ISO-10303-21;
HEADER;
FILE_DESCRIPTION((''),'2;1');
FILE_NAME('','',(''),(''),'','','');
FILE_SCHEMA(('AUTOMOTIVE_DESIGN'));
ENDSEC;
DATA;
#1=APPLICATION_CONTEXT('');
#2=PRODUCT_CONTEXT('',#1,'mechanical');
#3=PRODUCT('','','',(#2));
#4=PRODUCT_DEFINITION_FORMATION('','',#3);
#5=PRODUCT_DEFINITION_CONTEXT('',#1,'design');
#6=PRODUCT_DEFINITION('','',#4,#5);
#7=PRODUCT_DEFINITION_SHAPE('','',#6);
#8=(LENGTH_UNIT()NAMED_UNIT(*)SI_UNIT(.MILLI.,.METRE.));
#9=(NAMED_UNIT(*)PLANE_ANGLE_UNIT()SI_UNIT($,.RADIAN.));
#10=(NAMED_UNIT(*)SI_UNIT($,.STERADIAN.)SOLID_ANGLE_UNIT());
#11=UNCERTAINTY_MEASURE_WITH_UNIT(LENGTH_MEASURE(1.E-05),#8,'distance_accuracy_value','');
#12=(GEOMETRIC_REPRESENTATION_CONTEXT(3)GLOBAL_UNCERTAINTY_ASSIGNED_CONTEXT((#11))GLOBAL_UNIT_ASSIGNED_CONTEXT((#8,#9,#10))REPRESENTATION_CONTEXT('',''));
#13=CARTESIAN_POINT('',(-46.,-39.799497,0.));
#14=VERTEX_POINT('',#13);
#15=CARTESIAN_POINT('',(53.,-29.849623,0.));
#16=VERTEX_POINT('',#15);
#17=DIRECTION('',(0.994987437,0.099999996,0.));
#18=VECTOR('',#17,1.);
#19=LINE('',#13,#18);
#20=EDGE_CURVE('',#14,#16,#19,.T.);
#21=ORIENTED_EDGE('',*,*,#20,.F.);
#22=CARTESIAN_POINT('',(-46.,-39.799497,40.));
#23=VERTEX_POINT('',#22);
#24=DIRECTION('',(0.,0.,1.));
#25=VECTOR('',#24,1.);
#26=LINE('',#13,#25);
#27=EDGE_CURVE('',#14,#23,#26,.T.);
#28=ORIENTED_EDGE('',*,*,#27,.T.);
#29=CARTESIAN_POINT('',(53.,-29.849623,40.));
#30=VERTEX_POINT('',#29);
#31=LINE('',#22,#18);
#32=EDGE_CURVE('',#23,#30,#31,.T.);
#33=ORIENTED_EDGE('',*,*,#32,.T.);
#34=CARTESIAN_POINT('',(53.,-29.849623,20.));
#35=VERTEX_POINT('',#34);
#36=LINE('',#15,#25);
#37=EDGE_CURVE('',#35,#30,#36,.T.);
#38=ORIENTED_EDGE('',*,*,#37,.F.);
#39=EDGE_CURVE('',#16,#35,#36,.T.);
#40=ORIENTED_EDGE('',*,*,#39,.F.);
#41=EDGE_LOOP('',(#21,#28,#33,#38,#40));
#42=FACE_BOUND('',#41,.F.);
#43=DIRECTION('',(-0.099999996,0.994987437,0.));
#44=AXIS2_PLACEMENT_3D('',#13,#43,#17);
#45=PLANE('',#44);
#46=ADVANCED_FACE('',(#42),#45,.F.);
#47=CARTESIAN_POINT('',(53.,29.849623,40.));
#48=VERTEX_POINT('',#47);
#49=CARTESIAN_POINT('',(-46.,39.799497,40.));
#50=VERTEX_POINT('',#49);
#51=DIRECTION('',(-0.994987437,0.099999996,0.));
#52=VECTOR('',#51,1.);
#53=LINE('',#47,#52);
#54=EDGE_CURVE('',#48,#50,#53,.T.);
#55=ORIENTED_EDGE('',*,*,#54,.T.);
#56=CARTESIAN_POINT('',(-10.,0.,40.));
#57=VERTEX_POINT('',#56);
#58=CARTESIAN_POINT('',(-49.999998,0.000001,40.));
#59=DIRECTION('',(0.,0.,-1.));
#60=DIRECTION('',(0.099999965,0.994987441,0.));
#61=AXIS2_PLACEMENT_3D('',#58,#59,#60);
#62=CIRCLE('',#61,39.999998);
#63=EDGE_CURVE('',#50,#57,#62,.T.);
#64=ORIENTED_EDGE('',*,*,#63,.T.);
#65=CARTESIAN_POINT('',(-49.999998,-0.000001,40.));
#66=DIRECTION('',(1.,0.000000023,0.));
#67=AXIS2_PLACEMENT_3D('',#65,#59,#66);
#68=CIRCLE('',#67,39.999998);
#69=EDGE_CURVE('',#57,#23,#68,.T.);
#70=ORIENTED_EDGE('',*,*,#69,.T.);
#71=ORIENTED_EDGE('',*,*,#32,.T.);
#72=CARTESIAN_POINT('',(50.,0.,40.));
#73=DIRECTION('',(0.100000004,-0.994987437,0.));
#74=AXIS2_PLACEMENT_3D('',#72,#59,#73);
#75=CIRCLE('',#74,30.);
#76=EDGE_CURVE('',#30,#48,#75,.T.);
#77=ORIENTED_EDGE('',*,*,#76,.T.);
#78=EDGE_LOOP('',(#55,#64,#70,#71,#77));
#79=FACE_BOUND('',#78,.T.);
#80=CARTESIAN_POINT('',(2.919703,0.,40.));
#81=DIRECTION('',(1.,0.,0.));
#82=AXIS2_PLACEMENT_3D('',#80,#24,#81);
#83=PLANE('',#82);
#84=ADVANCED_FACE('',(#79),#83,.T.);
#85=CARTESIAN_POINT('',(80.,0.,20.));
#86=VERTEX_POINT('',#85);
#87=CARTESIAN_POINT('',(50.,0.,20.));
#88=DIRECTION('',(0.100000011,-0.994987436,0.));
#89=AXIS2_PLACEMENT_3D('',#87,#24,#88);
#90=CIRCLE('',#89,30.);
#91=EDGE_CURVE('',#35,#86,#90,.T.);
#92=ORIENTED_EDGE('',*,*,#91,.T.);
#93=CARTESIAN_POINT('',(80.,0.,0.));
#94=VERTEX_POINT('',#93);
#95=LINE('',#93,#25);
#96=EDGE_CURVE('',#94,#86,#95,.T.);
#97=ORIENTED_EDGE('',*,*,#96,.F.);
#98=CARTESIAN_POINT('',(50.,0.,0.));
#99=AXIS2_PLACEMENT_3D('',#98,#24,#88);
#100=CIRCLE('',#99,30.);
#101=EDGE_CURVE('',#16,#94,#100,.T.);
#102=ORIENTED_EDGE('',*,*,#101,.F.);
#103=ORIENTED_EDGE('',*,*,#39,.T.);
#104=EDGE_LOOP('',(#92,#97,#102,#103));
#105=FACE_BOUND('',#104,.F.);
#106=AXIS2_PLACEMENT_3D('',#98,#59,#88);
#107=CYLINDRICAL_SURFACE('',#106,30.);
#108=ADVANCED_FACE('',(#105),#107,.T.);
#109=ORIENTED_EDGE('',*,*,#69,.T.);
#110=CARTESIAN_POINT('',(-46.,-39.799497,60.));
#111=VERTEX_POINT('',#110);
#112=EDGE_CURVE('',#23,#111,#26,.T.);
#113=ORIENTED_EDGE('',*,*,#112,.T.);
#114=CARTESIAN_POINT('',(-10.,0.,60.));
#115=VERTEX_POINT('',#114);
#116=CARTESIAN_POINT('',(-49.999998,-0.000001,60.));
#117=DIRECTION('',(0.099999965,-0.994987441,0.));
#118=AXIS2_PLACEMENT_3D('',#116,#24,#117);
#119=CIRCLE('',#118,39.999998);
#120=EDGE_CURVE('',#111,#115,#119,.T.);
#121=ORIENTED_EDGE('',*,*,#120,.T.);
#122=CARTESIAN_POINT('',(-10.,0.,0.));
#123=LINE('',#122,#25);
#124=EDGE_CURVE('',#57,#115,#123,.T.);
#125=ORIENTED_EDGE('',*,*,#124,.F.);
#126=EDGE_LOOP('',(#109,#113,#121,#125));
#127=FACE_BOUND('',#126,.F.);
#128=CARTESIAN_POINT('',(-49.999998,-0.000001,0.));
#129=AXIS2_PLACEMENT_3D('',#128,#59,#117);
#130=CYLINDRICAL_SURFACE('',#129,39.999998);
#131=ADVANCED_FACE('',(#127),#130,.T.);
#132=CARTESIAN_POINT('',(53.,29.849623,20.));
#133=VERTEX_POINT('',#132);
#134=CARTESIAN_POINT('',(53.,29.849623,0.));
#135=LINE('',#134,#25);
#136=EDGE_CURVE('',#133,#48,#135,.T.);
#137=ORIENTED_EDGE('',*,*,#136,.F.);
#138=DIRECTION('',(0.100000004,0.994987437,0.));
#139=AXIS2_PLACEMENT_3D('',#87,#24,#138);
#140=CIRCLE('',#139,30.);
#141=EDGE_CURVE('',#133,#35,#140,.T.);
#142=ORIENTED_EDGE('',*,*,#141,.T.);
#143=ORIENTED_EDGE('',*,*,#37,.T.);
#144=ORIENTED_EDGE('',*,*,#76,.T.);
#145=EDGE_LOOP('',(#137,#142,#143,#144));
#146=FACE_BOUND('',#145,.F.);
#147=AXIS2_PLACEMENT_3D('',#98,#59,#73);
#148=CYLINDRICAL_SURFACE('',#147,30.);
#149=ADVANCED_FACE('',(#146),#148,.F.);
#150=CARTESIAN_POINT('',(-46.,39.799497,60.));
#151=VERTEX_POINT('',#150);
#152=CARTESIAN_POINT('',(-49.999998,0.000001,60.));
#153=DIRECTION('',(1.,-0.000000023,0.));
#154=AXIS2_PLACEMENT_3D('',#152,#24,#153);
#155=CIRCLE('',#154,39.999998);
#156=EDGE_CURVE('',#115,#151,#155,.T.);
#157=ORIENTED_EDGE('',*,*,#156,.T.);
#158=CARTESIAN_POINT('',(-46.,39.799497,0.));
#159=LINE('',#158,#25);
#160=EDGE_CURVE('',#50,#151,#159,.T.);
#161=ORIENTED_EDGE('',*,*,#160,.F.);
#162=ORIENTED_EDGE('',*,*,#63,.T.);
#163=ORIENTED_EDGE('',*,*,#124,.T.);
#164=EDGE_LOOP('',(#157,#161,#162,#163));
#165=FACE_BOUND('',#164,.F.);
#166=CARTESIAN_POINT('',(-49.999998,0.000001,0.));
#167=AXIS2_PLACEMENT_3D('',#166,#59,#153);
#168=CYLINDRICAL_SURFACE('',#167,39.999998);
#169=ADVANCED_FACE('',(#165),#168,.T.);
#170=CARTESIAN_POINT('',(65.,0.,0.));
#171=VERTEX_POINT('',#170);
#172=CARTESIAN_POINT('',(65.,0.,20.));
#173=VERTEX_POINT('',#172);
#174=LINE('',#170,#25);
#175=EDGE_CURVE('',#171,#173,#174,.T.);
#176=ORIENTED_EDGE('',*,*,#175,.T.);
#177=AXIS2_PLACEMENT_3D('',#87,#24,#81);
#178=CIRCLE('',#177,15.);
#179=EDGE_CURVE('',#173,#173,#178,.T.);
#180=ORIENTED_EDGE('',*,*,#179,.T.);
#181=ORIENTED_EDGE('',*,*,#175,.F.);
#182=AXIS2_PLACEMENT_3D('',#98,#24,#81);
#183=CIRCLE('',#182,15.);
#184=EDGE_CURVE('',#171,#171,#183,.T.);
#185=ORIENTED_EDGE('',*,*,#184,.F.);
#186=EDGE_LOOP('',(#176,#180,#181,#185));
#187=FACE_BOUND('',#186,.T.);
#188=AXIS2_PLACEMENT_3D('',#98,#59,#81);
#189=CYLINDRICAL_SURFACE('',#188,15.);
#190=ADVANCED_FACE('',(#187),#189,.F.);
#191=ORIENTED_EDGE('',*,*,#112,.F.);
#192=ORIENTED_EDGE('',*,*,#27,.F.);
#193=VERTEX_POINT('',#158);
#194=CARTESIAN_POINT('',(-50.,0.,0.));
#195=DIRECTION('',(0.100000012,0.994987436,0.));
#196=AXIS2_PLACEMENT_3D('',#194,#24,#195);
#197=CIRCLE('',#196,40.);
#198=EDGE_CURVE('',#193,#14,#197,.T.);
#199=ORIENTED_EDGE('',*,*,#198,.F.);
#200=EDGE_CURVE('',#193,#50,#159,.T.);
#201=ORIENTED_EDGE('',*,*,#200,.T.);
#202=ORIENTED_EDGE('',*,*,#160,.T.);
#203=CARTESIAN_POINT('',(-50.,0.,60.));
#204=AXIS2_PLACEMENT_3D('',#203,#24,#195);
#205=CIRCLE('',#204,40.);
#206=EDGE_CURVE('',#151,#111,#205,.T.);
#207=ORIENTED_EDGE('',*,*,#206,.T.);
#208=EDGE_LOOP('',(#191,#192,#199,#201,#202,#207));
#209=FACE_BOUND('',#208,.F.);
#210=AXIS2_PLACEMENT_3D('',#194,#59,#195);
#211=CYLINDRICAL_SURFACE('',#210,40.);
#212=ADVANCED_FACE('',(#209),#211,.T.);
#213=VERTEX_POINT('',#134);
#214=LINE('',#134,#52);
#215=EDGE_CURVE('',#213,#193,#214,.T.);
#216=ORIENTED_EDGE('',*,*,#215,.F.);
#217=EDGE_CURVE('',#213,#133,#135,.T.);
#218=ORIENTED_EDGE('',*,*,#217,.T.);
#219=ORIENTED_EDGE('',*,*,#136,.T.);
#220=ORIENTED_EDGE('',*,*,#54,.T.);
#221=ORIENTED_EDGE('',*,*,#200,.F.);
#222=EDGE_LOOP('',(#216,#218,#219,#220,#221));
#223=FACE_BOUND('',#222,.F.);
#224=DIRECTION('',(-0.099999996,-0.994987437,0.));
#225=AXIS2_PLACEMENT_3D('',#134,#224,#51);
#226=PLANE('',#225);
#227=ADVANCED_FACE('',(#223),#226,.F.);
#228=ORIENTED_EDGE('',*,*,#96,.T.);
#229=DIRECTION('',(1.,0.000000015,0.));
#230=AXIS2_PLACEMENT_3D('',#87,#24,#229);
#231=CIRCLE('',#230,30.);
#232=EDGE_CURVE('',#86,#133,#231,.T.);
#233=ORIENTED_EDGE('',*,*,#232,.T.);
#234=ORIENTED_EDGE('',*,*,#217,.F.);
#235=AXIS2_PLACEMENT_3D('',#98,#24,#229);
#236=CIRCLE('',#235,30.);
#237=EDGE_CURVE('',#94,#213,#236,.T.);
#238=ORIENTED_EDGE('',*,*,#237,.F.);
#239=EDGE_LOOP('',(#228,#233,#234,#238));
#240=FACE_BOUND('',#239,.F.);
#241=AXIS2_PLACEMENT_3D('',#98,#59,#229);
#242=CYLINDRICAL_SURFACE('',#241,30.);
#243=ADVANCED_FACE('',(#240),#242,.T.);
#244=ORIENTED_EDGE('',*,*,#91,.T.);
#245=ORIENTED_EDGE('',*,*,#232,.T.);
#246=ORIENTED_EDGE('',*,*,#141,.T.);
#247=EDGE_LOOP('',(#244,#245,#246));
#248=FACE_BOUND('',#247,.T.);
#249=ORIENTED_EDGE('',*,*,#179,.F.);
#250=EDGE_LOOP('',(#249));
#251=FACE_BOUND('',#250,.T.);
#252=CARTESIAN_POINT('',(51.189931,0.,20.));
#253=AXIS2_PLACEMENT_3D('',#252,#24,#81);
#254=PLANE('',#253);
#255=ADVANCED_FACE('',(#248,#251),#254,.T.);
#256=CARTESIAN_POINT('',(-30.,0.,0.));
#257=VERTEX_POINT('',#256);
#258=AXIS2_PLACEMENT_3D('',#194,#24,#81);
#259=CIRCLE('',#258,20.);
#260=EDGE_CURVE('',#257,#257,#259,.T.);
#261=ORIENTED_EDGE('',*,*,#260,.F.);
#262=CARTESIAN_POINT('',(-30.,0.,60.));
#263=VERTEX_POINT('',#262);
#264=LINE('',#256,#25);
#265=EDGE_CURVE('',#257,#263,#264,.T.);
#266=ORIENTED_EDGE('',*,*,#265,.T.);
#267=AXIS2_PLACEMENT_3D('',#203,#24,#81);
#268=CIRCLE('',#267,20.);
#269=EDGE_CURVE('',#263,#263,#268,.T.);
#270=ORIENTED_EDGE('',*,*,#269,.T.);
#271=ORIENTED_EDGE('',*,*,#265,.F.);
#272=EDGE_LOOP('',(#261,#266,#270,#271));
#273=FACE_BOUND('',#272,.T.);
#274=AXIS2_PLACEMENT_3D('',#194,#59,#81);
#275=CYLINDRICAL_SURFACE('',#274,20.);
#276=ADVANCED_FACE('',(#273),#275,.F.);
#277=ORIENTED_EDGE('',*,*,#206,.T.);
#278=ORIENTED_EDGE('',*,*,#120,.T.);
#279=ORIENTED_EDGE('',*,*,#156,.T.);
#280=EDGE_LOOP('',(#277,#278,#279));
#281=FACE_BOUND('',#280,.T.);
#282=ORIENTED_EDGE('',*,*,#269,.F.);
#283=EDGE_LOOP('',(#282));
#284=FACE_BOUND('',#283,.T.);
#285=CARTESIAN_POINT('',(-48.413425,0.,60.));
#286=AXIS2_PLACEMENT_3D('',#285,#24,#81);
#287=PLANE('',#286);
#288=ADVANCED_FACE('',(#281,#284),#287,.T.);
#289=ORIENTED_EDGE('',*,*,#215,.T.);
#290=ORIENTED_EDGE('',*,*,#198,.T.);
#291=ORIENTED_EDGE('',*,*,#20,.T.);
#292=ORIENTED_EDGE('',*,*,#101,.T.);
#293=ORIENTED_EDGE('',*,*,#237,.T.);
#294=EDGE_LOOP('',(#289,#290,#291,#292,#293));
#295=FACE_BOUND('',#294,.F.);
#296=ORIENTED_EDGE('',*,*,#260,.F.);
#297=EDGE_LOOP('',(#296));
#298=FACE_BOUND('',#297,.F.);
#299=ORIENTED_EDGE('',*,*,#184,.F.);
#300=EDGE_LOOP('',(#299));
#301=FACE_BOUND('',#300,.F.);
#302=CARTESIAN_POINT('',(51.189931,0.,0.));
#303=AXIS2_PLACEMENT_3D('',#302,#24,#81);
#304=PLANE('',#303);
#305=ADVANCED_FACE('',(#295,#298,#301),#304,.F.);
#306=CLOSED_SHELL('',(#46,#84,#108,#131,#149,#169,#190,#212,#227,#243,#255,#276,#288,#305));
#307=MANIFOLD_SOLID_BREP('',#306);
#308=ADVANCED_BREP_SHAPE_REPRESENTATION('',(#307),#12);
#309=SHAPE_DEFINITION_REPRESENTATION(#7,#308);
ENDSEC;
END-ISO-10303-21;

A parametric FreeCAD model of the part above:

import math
import FreeCAD as App
import Part
import Sketcher
from FreeCAD import Vector

doc = App.newDocument("Part")
body = doc.addObject("PartDesign::Body", "Body")

sketch1 = body.newObject("Sketcher::SketchObject", "Sketch")
sketch1.AttachmentSupport = (doc.getObject("XY_Plane"), [""])
sketch1.MapMode = "FlatFace"
sketch1.addGeometry(Part.ArcOfCircle(Part.Circle(Vector(-49.999998, -0.000001, 0), Vector(0, 0, 1), 39.999998), math.radians(-84.260832), math.radians(0.000001)), False)
sketch1.addGeometry(Part.ArcOfCircle(Part.Circle(Vector(-49.999998, 0.000001, 0), Vector(0, 0, 1), 39.999998), math.radians(-0.000001), math.radians(84.260832)), False)
sketch1.addGeometry(Part.ArcOfCircle(Part.Circle(Vector(-50, 0, 0), Vector(0, 0, 1), 40), math.radians(84.260829), math.radians(275.739171)), False)
sketch1.addGeometry(Part.Circle(Vector(-50, 0, 0), Vector(0, 0, 1), 20), False)
sketch1.addConstraint(Sketcher.Constraint("Tangent", 0, 2, 1, 1))
sketch1.addConstraint(Sketcher.Constraint("Tangent", 1, 2, 2, 1))
sketch1.addConstraint(Sketcher.Constraint("Tangent", 2, 2, 0, 1))
sketch1.addConstraint(Sketcher.Constraint("Coincident", 3, 3, 0, 3))
sketch1.addConstraint(Sketcher.Constraint("Symmetric", 1, 2, 2, 2, -1))
sketch1.addConstraint(Sketcher.Constraint("PointOnObject", 0, 2, -1))
sketch1.addConstraint(Sketcher.Constraint("Diameter", 3, 40.0))
sketch1.addConstraint(Sketcher.Constraint("Radius", 0, 39.999998))
sketch1.addConstraint(Sketcher.Constraint("DistanceX", 0, 3, -1, 1, 49.999998))
sketch1.addConstraint(Sketcher.Constraint("DistanceX", 1, 2, -1, 1, 46.0))
pad1 = body.newObject("PartDesign::Pad", "Pad")
pad1.Profile = sketch1
pad1.Length = 60

sketch2 = body.newObject("Sketcher::SketchObject", "Sketch001")
sketch2.AttachmentSupport = (doc.getObject("XY_Plane"), [""])
sketch2.MapMode = "FlatFace"
sketch2.addGeometry(Part.ArcOfCircle(Part.Circle(Vector(-49.999998, 0.000001, 0), Vector(0, 0, 1), 39.999998), math.radians(-0.000001), math.radians(84.260832)), False)
sketch2.addGeometry(Part.ArcOfCircle(Part.Circle(Vector(-49.999998, -0.000001, 0), Vector(0, 0, 1), 39.999998), math.radians(-84.260832), math.radians(0.000001)), False)
sketch2.addGeometry(Part.LineSegment(Vector(-46, -39.799497, 0), Vector(53, -29.849623, 0)), False)
sketch2.addGeometry(Part.ArcOfCircle(Part.Circle(Vector(50, 0, 0), Vector(0, 0, 1), 30), math.radians(84.260829), math.radians(275.739171)), False)
sketch2.addGeometry(Part.LineSegment(Vector(53, 29.849623, 0), Vector(-46, 39.799497, 0)), False)
sketch2.addConstraint(Sketcher.Constraint("Tangent", 0, 1, 1, 2))
sketch2.addConstraint(Sketcher.Constraint("Tangent", 1, 1, 2, 1))
sketch2.addConstraint(Sketcher.Constraint("Tangent", 2, 2, 3, 2))
sketch2.addConstraint(Sketcher.Constraint("Tangent", 3, 1, 4, 1))
sketch2.addConstraint(Sketcher.Constraint("Tangent", 4, 2, 0, 2))
sketch2.addConstraint(Sketcher.Constraint("Equal", 0, 1))
sketch2.addConstraint(Sketcher.Constraint("Symmetric", 0, 3, 3, 3, -1, 1))
sketch2.addConstraint(Sketcher.Constraint("PointOnObject", 0, 3, -1))
sketch2.addConstraint(Sketcher.Constraint("PointOnObject", 0, 1, -1))
sketch2.addConstraint(Sketcher.Constraint("Radius", 0, 39.999998))
sketch2.addConstraint(Sketcher.Constraint("Radius", 3, 30.0))
sketch2.addConstraint(Sketcher.Constraint("DistanceX", 0, 3, -1, 1, 49.999998))
pad2 = body.newObject("PartDesign::Pad", "Pad001")
pad2.Profile = sketch2
pad2.Length = 40

sketch3 = body.newObject("Sketcher::SketchObject", "Sketch002")
sketch3.AttachmentSupport = (doc.getObject("XY_Plane"), [""])
sketch3.MapMode = "FlatFace"
sketch3.addGeometry(Part.ArcOfCircle(Part.Circle(Vector(50, 0, 0), Vector(0, 0, 1), 30), math.radians(0.000001), math.radians(84.260829)), False)
sketch3.addGeometry(Part.ArcOfCircle(Part.Circle(Vector(50, 0, 0), Vector(0, 0, 1), 30), math.radians(84.260829), math.radians(275.739171)), False)
sketch3.addGeometry(Part.ArcOfCircle(Part.Circle(Vector(50, 0, 0), Vector(0, 0, 1), 30), math.radians(-84.260829), math.radians(-0.000001)), False)
sketch3.addGeometry(Part.Circle(Vector(50, 0, 0), Vector(0, 0, 1), 15), False)
sketch3.addConstraint(Sketcher.Constraint("Tangent", 0, 2, 1, 1))
sketch3.addConstraint(Sketcher.Constraint("Tangent", 1, 2, 2, 1))
sketch3.addConstraint(Sketcher.Constraint("Tangent", 2, 2, 0, 1))
sketch3.addConstraint(Sketcher.Constraint("Coincident", 3, 3, 0, 3))
sketch3.addConstraint(Sketcher.Constraint("Symmetric", 0, 2, 1, 2, -1))
sketch3.addConstraint(Sketcher.Constraint("PointOnObject", 2, 2, -1))
sketch3.addConstraint(Sketcher.Constraint("Diameter", 3, 30.0))
sketch3.addConstraint(Sketcher.Constraint("Radius", 0, 30.0))
sketch3.addConstraint(Sketcher.Constraint("DistanceX", -1, 1, 0, 3, 50.0))
sketch3.addConstraint(Sketcher.Constraint("DistanceX", -1, 1, 0, 2, 53.0))
pad3 = body.newObject("PartDesign::Pad", "Pad002")
pad3.Profile = sketch3
pad3.Length = 20

doc.recompute()
